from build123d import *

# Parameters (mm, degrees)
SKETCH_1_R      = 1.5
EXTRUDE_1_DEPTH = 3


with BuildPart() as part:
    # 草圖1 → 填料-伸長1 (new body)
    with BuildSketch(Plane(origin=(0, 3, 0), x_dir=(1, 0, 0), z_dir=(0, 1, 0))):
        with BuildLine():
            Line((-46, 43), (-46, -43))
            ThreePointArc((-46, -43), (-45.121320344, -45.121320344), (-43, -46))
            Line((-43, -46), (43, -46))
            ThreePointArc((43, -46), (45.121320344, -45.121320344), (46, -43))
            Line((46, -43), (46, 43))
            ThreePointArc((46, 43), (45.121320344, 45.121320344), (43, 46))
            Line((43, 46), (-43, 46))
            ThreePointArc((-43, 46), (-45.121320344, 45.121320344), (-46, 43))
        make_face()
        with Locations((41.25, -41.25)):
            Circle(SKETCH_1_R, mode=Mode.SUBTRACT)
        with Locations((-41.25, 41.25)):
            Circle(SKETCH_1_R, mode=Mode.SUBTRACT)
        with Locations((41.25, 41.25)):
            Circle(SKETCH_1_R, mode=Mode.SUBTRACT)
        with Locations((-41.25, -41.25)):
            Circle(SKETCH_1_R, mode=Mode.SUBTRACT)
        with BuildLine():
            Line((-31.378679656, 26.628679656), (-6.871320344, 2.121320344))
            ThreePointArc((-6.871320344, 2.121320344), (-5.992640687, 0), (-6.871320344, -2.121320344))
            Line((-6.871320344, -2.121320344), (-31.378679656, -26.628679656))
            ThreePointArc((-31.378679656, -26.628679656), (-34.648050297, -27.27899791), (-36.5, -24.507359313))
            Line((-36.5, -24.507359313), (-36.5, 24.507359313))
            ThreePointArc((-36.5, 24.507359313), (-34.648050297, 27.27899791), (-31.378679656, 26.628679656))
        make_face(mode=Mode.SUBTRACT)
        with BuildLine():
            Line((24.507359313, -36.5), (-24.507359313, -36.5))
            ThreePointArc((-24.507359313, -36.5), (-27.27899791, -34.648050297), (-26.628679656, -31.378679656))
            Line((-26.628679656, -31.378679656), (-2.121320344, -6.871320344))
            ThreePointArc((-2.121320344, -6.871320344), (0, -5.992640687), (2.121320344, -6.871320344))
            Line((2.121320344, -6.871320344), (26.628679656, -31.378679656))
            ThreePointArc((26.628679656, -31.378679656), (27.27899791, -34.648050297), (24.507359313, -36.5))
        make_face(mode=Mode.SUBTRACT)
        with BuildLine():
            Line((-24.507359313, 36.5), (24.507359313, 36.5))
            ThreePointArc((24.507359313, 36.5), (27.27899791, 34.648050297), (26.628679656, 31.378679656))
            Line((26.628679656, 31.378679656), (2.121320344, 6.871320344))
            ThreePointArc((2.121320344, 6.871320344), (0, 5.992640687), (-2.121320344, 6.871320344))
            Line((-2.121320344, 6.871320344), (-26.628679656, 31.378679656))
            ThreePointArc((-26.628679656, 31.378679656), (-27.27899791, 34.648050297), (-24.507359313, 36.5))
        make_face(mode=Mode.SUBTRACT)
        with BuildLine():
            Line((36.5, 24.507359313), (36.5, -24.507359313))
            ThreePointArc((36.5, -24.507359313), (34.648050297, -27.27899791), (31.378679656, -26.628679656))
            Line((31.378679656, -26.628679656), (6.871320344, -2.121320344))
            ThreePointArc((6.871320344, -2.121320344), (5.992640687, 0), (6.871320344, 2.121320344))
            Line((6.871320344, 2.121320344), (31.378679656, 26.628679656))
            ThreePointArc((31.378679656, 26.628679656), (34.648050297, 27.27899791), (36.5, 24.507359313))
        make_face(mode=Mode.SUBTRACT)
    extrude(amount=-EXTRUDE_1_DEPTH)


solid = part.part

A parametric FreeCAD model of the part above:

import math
import FreeCAD as App
import Part
import Sketcher

V = App.Vector

doc = App.newDocument("Part")
body = doc.addObject("PartDesign::Body", "Body")

# Sketch on XZ plane
sketch1 = body.newObject("Sketcher::SketchObject", "Sketch")
sketch1.AttachmentSupport = (doc.getObject("XZ_Plane"), [""])
sketch1.MapMode = "FlatFace"
sketch1.AttachmentOffset = App.Placement(V(0, 0, -3), App.Rotation())
sketch1.addGeometry([
    Part.LineSegment(V(-46, -43, 0), V(-46, 43, 0)),  # 0
    Part.ArcOfCircle(Part.Circle(V(-43, 43, 0), V(0, 0, 1), 3), math.radians(90), math.radians(180)),  # 1
    Part.LineSegment(V(-43, 46, 0), V(43, 46, 0)),  # 2
    Part.ArcOfCircle(Part.Circle(V(43, 43, 0), V(0, 0, 1), 3), math.radians(0), math.radians(90)),  # 3
    Part.LineSegment(V(46, 43, 0), V(46, -43, 0)),  # 4
    Part.ArcOfCircle(Part.Circle(V(43, -43, 0), V(0, 0, 1), 3), math.radians(-90), math.radians(0)),  # 5
    Part.LineSegment(V(43, -46, 0), V(-43, -46, 0)),  # 6
    Part.ArcOfCircle(Part.Circle(V(-43, -43, 0), V(0, 0, 1), 3), math.radians(180), math.radians(270)),  # 7
    Part.Circle(V(-41.2, 41.2, 0), V(0, 0, 1), 1.5),  # 8
    Part.Circle(V(41.2, 41.2, 0), V(0, 0, 1), 1.5),  # 9
    Part.ArcOfCircle(Part.Circle(V(24.5, 33.5, 0), V(0, 0, 1), 3), math.radians(-45), math.radians(90)),  # 10
    Part.LineSegment(V(24.5, 36.5, 0), V(-24.5, 36.5, 0)),  # 11
    Part.ArcOfCircle(Part.Circle(V(-24.5, 33.5, 0), V(0, 0, 1), 3), math.radians(90), math.radians(225)),  # 12
    Part.LineSegment(V(-26.6, 31.4, 0), V(-2.1, 6.9, 0)),  # 13
    Part.ArcOfCircle(Part.Circle(V(0, 9, 0), V(0, 0, 1), 3), math.radians(-135), math.radians(-45)),  # 14
    Part.LineSegment(V(2.1, 6.9, 0), V(26.6, 31.4, 0)),  # 15
    Part.ArcOfCircle(Part.Circle(V(-33.5, -24.5, 0), V(0, 0, 1), 3), math.radians(-180), math.radians(-45)),  # 16
    Part.LineSegment(V(-31.4, -26.6, 0), V(-6.9, -2.1, 0)),  # 17
    Part.ArcOfCircle(Part.Circle(V(-9, 0, 0), V(0, 0, 1), 3), math.radians(-45), math.radians(45)),  # 18
    Part.LineSegment(V(-6.9, 2.1, 0), V(-31.4, 26.6, 0)),  # 19
    Part.ArcOfCircle(Part.Circle(V(-33.5, 24.5, 0), V(0, 0, 1), 3), math.radians(45), math.radians(180)),  # 20
    Part.LineSegment(V(-36.5, 24.5, 0), V(-36.5, -24.5, 0)),  # 21
    Part.Circle(V(-41.2, -41.2, 0), V(0, 0, 1), 1.5),  # 22
    Part.ArcOfCircle(Part.Circle(V(33.5, -24.5, 0), V(0, 0, 1), 3), math.radians(-135), math.radians(0)),  # 23
    Part.LineSegment(V(36.5, -24.5, 0), V(36.5, 24.5, 0)),  # 24
    Part.ArcOfCircle(Part.Circle(V(33.5, 24.5, 0), V(0, 0, 1), 3), math.radians(0), math.radians(135)),  # 25
    Part.LineSegment(V(31.4, 26.6, 0), V(6.9, 2.1, 0)),  # 26
    Part.ArcOfCircle(Part.Circle(V(9, 0, 0), V(0, 0, 1), 3), math.radians(135), math.radians(225)),  # 27
    Part.LineSegment(V(6.9, -2.1, 0), V(31.4, -26.6, 0)),  # 28
    Part.ArcOfCircle(Part.Circle(V(-24.5, -33.5, 0), V(0, 0, 1), 3), math.radians(135), math.radians(270)),  # 29
    Part.LineSegment(V(-24.5, -36.5, 0), V(24.5, -36.5, 0)),  # 30
    Part.ArcOfCircle(Part.Circle(V(24.5, -33.5, 0), V(0, 0, 1), 3), math.radians(-90), math.radians(45)),  # 31
    Part.LineSegment(V(26.6, -31.4, 0), V(2.1, -6.9, 0)),  # 32
    Part.ArcOfCircle(Part.Circle(V(0, -9, 0), V(0, 0, 1), 3), math.radians(45), math.radians(135)),  # 33
    Part.LineSegment(V(-2.1, -6.9, 0), V(-26.6, -31.4, 0)),  # 34
    Part.Circle(V(41.2, -41.2, 0), V(0, 0, 1), 1.5),  # 35
], False)
sketch1.addConstraint([
    Sketcher.Constraint("Tangent", 0, 2, 1, 2),
    Sketcher.Constraint("Tangent", 1, 1, 2, 1),
    Sketcher.Constraint("Tangent", 2, 2, 3, 2),
    Sketcher.Constraint("Tangent", 3, 1, 4, 1),
    Sketcher.Constraint("Tangent", 4, 2, 5, 2),
    Sketcher.Constraint("Tangent", 5, 1, 6, 1),
    Sketcher.Constraint("Tangent", 6, 2, 7, 2),
    Sketcher.Constraint("Tangent", 7, 1, 0, 1),
    Sketcher.Constraint("Tangent", 10, 2, 11, 1),
    Sketcher.Constraint("Tangent", 11, 2, 12, 1),
    Sketcher.Constraint("Tangent", 12, 2, 13, 1),
    Sketcher.Constraint("Tangent", 13, 2, 14, 1),
    Sketcher.Constraint("Tangent", 14, 2, 15, 1),
    Sketcher.Constraint("Tangent", 15, 2, 10, 1),
    Sketcher.Constraint("Tangent", 16, 2, 17, 1),
    Sketcher.Constraint("Tangent", 17, 2, 18, 1),
    Sketcher.Constraint("Tangent", 18, 2, 19, 1),
    Sketcher.Constraint("Tangent", 19, 2, 20, 1),
    Sketcher.Constraint("Tangent", 20, 2, 21, 1),
    Sketcher.Constraint("Tangent", 21, 2, 16, 1),
    Sketcher.Constraint("Tangent", 23, 2, 24, 1),
    Sketcher.Constraint("Tangent", 24, 2, 25, 1),
    Sketcher.Constraint("Tangent", 25, 2, 26, 1),
    Sketcher.Constraint("Tangent", 26, 2, 27, 1),
    Sketcher.Constraint("Tangent", 27, 2, 28, 1),
    Sketcher.Constraint("Tangent", 28, 2, 23, 1),
    Sketcher.Constraint("Tangent", 29, 2, 30, 1),
    Sketcher.Constraint("Tangent", 30, 2, 31, 1),
    Sketcher.Constraint("Tangent", 31, 2, 32, 1),
    Sketcher.Constraint("Tangent", 32, 2, 33, 1),
    Sketcher.Constraint("Tangent", 33, 2, 34, 1),
    Sketcher.Constraint("Tangent", 34, 2, 29, 1),
    Sketcher.Constraint("Vertical", 0),
    Sketcher.Constraint("Horizontal", 2),
    Sketcher.Constraint("Vertical", 4),
    Sketcher.Constraint("Horizontal", 6),
    Sketcher.Constraint("Horizontal", 11),
    Sketcher.Constraint("Vertical", 21),
    Sketcher.Constraint("Vertical", 24),
    Sketcher.Constraint("Horizontal", 30),
    Sketcher.Constraint("Equal", 1, 3),
    Sketcher.Constraint("Equal", 3, 5),
    Sketcher.Constraint("Equal", 5, 7),
    Sketcher.Constraint("Equal", 8, 9),
    Sketcher.Constraint("Equal", 7, 10),
    Sketcher.Constraint("Equal", 10, 12),
    Sketcher.Constraint("Equal", 12, 14),
    Sketcher.Constraint("Equal", 14, 16),
    Sketcher.Constraint("Equal", 16, 18),
    Sketcher.Constraint("Equal", 18, 20),
    Sketcher.Constraint("Equal", 9, 22),
    Sketcher.Constraint("Equal", 20, 23),
    Sketcher.Constraint("Equal", 23, 25),
    Sketcher.Constraint("Equal", 25, 27),
    Sketcher.Constraint("Equal", 27, 29),
    Sketcher.Constraint("Equal", 29, 31),
    Sketcher.Constraint("Equal", 31, 33),
    Sketcher.Constraint("Equal", 22, 35),
    Sketcher.Constraint("Symmetric", 1, 3, 5, 3, -1, 1),
    Sketcher.Constraint("Symmetric", 9, 3, 22, 3, -1, 1),
    Sketcher.Constraint("Symmetric", 20, 3, 23, 3, -1, 1),
    Sketcher.Constraint("Symmetric", 18, 3, 27, 3, -1, 1),
    Sketcher.Constraint("Symmetric", 10, 3, 29, 3, -1, 1),
    Sketcher.Constraint("Symmetric", 14, 3, 33, 3, -1, 1),
    Sketcher.Constraint("Symmetric", 8, 3, 35, 3, -1, 1),
    Sketcher.Constraint("Symmetric", 8, 3, 9, 3, -2),
    Sketcher.Constraint("Symmetric", 13, 2, 14, 2, -2),
    Sketcher.Constraint("Symmetric", 19, 2, 25, 2, -2),
    Sketcher.Constraint("Perpendicular", 13, 15),
    Sketcher.Constraint("Parallel", 15, 17),
    Sketcher.Constraint("Perpendicular", 17, 19),
    Sketcher.Constraint("Parallel", 28, 32),
    Sketcher.Constraint("Equal", 6, 0),
    Sketcher.Constraint("Equal", 30, 21),
    Sketcher.Constraint("Diameter", 8, 3.0),
    Sketcher.Constraint("Radius", 1, 3.0),
    Sketcher.Constraint("DistanceX", 2, 1, 2, 2, 86.0),
    Sketcher.Constraint("DistanceY", -1, 1, 10, 3, 33.5),
    Sketcher.Constraint("DistanceX", 16, 3, -1, 1, 33.5),
    Sketcher.Constraint("DistanceX", 8, 3, 9, 3, 82.5),
    Sketcher.Constraint("DistanceY", -1, 1, 8, 3, 41.25),
    Sketcher.Constraint("DistanceX", 17, 2, 13, 2, 4.75),
])
pad1 = body.newObject("PartDesign::Pad", "Pad")
pad1.Profile = sketch1
pad1.Length = 3

doc.recompute()
